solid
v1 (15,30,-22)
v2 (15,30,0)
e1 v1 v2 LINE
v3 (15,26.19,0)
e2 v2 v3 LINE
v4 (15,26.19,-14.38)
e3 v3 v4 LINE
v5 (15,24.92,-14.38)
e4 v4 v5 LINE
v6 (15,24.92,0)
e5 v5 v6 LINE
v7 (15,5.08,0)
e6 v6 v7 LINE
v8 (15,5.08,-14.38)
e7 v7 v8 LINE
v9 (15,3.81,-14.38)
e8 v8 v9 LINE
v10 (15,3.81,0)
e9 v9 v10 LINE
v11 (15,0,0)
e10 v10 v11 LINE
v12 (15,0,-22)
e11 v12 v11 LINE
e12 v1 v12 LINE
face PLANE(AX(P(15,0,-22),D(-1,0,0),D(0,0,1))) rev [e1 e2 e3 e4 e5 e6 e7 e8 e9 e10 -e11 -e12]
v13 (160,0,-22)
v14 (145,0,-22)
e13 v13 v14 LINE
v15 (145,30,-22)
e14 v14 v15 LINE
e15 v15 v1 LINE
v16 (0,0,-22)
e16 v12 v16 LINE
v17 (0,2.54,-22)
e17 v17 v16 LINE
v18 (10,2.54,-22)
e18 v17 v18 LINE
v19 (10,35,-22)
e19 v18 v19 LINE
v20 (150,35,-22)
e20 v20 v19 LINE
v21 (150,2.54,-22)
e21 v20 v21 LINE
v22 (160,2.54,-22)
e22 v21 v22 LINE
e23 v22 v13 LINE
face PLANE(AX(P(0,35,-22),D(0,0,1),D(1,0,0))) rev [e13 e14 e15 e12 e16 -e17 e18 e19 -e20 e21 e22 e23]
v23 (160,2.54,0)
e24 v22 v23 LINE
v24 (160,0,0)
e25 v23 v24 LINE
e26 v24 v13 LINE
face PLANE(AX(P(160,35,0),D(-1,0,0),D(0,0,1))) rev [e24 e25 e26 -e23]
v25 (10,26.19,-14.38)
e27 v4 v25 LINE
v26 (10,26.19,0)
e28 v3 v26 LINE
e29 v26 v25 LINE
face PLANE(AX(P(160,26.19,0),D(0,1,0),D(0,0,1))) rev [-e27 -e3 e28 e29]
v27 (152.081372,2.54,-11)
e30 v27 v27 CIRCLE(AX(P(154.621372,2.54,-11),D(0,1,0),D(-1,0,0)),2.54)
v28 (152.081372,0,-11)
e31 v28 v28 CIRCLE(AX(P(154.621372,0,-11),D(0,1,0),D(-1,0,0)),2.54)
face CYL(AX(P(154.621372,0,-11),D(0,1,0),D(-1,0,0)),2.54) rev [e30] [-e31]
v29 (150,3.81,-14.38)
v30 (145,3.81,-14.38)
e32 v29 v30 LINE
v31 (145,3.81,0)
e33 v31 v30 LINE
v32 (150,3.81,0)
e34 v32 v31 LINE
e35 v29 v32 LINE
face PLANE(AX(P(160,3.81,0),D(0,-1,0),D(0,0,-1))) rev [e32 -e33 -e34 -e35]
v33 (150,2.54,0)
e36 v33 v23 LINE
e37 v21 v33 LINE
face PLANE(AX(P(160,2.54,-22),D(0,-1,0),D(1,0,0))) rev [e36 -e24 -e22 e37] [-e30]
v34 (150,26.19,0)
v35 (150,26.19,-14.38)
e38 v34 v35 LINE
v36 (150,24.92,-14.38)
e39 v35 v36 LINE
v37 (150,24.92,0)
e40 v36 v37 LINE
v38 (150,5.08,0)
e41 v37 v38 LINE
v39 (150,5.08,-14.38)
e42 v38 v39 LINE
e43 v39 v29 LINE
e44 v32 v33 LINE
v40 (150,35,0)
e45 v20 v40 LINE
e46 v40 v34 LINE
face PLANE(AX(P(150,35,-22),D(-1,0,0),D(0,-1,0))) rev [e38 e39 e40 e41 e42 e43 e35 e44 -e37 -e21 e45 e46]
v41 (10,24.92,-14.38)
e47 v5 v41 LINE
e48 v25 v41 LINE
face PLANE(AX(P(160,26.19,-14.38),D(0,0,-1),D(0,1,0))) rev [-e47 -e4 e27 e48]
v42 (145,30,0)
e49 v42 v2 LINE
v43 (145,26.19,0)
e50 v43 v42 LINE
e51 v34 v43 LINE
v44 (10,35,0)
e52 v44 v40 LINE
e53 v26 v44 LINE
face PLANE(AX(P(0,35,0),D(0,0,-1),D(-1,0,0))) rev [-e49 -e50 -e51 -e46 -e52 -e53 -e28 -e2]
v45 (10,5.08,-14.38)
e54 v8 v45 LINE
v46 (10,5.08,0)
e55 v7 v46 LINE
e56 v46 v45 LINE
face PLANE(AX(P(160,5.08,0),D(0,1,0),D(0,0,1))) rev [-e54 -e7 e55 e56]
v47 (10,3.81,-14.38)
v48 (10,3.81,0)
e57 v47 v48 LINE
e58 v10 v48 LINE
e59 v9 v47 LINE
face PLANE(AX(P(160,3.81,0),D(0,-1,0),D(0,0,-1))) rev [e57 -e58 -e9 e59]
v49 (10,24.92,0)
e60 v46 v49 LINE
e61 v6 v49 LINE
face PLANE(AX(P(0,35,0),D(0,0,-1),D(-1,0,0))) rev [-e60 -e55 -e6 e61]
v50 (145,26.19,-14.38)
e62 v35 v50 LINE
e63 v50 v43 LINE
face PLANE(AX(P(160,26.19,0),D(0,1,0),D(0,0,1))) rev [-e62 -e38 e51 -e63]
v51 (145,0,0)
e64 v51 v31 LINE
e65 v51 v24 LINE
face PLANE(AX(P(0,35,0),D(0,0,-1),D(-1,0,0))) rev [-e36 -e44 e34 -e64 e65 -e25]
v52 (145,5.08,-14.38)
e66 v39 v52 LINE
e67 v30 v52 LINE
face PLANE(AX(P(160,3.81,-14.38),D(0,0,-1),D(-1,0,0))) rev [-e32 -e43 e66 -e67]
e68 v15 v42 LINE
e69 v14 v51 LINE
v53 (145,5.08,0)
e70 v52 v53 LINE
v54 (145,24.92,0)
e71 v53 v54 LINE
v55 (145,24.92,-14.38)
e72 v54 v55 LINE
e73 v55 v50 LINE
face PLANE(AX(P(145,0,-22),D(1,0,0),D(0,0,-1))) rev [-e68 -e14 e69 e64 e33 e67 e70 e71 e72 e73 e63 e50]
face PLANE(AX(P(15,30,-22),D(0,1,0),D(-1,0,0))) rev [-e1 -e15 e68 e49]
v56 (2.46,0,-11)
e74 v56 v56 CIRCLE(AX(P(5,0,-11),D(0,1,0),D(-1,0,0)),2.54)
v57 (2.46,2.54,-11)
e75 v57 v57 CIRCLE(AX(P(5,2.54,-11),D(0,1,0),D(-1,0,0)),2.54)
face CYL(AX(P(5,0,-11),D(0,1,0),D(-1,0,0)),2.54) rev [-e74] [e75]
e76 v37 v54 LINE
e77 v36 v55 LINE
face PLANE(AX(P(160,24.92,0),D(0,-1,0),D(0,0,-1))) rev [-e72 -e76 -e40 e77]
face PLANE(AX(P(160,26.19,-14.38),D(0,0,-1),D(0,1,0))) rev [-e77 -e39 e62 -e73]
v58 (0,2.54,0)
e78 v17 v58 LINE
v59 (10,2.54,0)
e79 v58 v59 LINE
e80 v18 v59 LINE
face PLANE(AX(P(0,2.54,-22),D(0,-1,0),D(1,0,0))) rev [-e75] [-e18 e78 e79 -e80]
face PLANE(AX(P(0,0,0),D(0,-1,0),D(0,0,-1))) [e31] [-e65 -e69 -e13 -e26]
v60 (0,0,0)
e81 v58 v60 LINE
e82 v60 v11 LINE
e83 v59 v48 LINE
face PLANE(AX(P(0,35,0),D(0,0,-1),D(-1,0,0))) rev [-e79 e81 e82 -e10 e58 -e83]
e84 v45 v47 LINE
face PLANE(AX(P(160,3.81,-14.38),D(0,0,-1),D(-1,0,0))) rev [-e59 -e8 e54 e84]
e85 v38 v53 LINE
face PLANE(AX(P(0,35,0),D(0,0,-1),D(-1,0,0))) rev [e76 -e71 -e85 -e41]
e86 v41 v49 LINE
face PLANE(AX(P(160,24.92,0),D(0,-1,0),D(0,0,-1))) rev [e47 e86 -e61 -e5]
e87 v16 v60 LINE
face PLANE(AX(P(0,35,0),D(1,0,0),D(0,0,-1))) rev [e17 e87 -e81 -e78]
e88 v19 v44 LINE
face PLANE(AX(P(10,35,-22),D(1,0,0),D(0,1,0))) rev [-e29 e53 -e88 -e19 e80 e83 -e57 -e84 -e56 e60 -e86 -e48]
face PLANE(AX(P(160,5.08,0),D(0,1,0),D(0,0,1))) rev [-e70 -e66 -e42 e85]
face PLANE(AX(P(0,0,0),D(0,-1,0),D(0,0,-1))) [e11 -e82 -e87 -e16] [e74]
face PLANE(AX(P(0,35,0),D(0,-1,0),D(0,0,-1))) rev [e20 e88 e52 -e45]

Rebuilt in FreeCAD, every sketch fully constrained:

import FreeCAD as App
import Part
import Sketcher


def add_polygon(sketch, points):
    """Adds a closed chain of lines whose ends are joined by coincident constraints."""
    first, n = sketch.GeometryCount, len(points)
    for a, b in zip(points, points[1:] + points[:1]):
        sketch.addGeometry(Part.LineSegment(App.Vector(*a, 0), App.Vector(*b, 0)), False)
    for i in range(n):
        sketch.addConstraint(Sketcher.Constraint("Coincident", first + i, 2, first + (i + 1) % n, 1))

doc = App.newDocument("Part")
body = doc.addObject("PartDesign::Body", "Body")

sketch1 = body.newObject("Sketcher::SketchObject", "Sketch")
sketch1.AttachmentSupport = (doc.getObject("XZ_Plane"), [""])
sketch1.MapMode = "FlatFace"
add_polygon(sketch1, [(0, -22), (0, 0), (160, 0), (160, -22)])
sketch1.addConstraint([
    Sketcher.Constraint("Vertical", 0),
    Sketcher.Constraint("Horizontal", 1),
    Sketcher.Constraint("Vertical", 2),
    Sketcher.Constraint("Horizontal", 3),
    Sketcher.Constraint("Coincident", 0, 2, -1, 1),
    Sketcher.Constraint("DistanceX", 1, 1, 1, 2, 160.0),
    Sketcher.Constraint("DistanceY", 0, 1, 0, 2, 22.0),
])
pad1 = body.newObject("PartDesign::Pad", "Pad")
pad1.Profile = sketch1
pad1.Length = 35
pad1.Reversed = True

sketch2 = body.newObject("Sketcher::SketchObject", "Sketch001")
sketch2.AttachmentSupport = (doc.getObject("XY_Plane"), [""])
sketch2.MapMode = "FlatFace"
add_polygon(sketch2, [(15, 30), (15, 0), (145, 0), (145, 30)])
sketch2.addConstraint([
    Sketcher.Constraint("Vertical", 0),
    Sketcher.Constraint("Horizontal", 1),
    Sketcher.Constraint("Vertical", 2),
    Sketcher.Constraint("Horizontal", 3),
    Sketcher.Constraint("PointOnObject", 0, 2, -1),
    Sketcher.Constraint("DistanceX", 1, 1, 1, 2, 130.0),
    Sketcher.Constraint("DistanceY", 0, 2, 0, 1, 30.0),
    Sketcher.Constraint("DistanceX", -1, 1, 0, 2, 15.0),
])
pocket1 = body.newObject("PartDesign::Pocket", "Pocket")
pocket1.Profile = sketch2
pocket1.Type = "ThroughAll"

sketch3 = body.newObject("Sketcher::SketchObject", "Sketch002")
sketch3.AttachmentSupport = (doc.getObject("XY_Plane"), [""])
sketch3.MapMode = "FlatFace"
add_polygon(sketch3, [(0, 35), (0, 2.54), (10, 2.54), (10, 35)])
add_polygon(sketch3, [(150, 35), (150, 2.54), (160, 2.54), (160, 35)])
sketch3.addConstraint([
    Sketcher.Constraint("Vertical", 0),
    Sketcher.Constraint("Horizontal", 1),
    Sketcher.Constraint("Vertical", 2),
    Sketcher.Constraint("Horizontal", 3),
    Sketcher.Constraint("Vertical", 4),
    Sketcher.Constraint("Horizontal", 5),
    Sketcher.Constraint("Vertical", 6),
    Sketcher.Constraint("Horizontal", 7),
    Sketcher.Constraint("PointOnObject", 0, 2, -2),
    Sketcher.Constraint("Horizontal", 1, 2, 4, 2),
    Sketcher.Constraint("Horizontal", 3, 2, 6, 2),
    Sketcher.Constraint("Equal", 3, 5),
    Sketcher.Constraint("DistanceX", 1, 1, 1, 2, 10.0),
    Sketcher.Constraint("DistanceY", -1, 1, 2, 2, 35.0),
    Sketcher.Constraint("DistanceX", -1, 1, 4, 2, 150.0),
    Sketcher.Constraint("DistanceY", 0, 2, 0, 1, 32.46),
])
pocket2 = body.newObject("PartDesign::Pocket", "Pocket001")
pocket2.Profile = sketch3
pocket2.Type = "ThroughAll"

sketch4 = body.newObject("Sketcher::SketchObject", "Sketch003")
sketch4.AttachmentSupport = (doc.getObject("YZ_Plane"), [""])
sketch4.MapMode = "FlatFace"
sketch4.AttachmentOffset = App.Placement(App.Vector(0, 0, 10), App.Rotation())
add_polygon(sketch4, [(5.08, -14.38), (3.81, -14.38), (3.81, 0), (5.08, 0)])
add_polygon(sketch4, [(26.19, -14.38), (24.92, -14.38), (24.92, 0), (26.19, 0)])
sketch4.addConstraint([
    Sketcher.Constraint("Horizontal", 0),
    Sketcher.Constraint("Vertical", 1),
    Sketcher.Constraint("Horizontal", 2),
    Sketcher.Constraint("Vertical", 3),
    Sketcher.Constraint("Horizontal", 4),
    Sketcher.Constraint("Vertical", 5),
    Sketcher.Constraint("Horizontal", 6),
    Sketcher.Constraint("Vertical", 7),
    Sketcher.Constraint("PointOnObject", 1, 2, -1),
    Sketcher.Constraint("PointOnObject", 5, 2, -1),
    Sketcher.Constraint("Horizontal", 3, 2, 4, 2),
    Sketcher.Constraint("Equal", 2, 4),
    Sketcher.Constraint("DistanceX", 0, 2, 0, 1, 1.27),
    Sketcher.Constraint("DistanceY", 1, 1, 1, 2, 14.38),
    Sketcher.Constraint("DistanceX", -1, 1, 0, 2, 3.81),
    Sketcher.Constraint("DistanceX", -1, 1, 4, 2, 24.92),
])
pocket3 = body.newObject("PartDesign::Pocket", "Pocket002")
pocket3.Profile = sketch4
pocket3.Type = "ThroughAll"
pocket3.Reversed = True

sketch5 = body.newObject("Sketcher::SketchObject", "Sketch004")
sketch5.AttachmentSupport = (doc.getObject("XZ_Plane"), [""])
sketch5.MapMode = "FlatFace"
sketch5.AttachmentOffset = App.Placement(App.Vector(0, 0, -2.54), App.Rotation())
sketch5.addGeometry([
    Part.Circle(App.Vector(154.621372, -11, 0), App.Vector(0, 0, 1), 2.54),
    Part.Circle(App.Vector(5, -11, 0), App.Vector(0, 0, 1), 2.54),
], False)
sketch5.addConstraint([
    Sketcher.Constraint("Equal", 0, 1),
    Sketcher.Constraint("Horizontal", 0, 3, 1, 3),
    Sketcher.Constraint("Diameter", 0, 5.08),
    Sketcher.Constraint("DistanceY", 0, 3, -1, 1, 11.0),
    Sketcher.Constraint("DistanceX", -1, 1, 1, 3, 5.0),
    Sketcher.Constraint("DistanceX", -1, 1, 0, 3, 154.621372),
])
pocket4 = body.newObject("PartDesign::Pocket", "Pocket003")
pocket4.Profile = sketch5
pocket4.Type = "ThroughAll"
pocket4.Reversed = True

doc.recompute()
